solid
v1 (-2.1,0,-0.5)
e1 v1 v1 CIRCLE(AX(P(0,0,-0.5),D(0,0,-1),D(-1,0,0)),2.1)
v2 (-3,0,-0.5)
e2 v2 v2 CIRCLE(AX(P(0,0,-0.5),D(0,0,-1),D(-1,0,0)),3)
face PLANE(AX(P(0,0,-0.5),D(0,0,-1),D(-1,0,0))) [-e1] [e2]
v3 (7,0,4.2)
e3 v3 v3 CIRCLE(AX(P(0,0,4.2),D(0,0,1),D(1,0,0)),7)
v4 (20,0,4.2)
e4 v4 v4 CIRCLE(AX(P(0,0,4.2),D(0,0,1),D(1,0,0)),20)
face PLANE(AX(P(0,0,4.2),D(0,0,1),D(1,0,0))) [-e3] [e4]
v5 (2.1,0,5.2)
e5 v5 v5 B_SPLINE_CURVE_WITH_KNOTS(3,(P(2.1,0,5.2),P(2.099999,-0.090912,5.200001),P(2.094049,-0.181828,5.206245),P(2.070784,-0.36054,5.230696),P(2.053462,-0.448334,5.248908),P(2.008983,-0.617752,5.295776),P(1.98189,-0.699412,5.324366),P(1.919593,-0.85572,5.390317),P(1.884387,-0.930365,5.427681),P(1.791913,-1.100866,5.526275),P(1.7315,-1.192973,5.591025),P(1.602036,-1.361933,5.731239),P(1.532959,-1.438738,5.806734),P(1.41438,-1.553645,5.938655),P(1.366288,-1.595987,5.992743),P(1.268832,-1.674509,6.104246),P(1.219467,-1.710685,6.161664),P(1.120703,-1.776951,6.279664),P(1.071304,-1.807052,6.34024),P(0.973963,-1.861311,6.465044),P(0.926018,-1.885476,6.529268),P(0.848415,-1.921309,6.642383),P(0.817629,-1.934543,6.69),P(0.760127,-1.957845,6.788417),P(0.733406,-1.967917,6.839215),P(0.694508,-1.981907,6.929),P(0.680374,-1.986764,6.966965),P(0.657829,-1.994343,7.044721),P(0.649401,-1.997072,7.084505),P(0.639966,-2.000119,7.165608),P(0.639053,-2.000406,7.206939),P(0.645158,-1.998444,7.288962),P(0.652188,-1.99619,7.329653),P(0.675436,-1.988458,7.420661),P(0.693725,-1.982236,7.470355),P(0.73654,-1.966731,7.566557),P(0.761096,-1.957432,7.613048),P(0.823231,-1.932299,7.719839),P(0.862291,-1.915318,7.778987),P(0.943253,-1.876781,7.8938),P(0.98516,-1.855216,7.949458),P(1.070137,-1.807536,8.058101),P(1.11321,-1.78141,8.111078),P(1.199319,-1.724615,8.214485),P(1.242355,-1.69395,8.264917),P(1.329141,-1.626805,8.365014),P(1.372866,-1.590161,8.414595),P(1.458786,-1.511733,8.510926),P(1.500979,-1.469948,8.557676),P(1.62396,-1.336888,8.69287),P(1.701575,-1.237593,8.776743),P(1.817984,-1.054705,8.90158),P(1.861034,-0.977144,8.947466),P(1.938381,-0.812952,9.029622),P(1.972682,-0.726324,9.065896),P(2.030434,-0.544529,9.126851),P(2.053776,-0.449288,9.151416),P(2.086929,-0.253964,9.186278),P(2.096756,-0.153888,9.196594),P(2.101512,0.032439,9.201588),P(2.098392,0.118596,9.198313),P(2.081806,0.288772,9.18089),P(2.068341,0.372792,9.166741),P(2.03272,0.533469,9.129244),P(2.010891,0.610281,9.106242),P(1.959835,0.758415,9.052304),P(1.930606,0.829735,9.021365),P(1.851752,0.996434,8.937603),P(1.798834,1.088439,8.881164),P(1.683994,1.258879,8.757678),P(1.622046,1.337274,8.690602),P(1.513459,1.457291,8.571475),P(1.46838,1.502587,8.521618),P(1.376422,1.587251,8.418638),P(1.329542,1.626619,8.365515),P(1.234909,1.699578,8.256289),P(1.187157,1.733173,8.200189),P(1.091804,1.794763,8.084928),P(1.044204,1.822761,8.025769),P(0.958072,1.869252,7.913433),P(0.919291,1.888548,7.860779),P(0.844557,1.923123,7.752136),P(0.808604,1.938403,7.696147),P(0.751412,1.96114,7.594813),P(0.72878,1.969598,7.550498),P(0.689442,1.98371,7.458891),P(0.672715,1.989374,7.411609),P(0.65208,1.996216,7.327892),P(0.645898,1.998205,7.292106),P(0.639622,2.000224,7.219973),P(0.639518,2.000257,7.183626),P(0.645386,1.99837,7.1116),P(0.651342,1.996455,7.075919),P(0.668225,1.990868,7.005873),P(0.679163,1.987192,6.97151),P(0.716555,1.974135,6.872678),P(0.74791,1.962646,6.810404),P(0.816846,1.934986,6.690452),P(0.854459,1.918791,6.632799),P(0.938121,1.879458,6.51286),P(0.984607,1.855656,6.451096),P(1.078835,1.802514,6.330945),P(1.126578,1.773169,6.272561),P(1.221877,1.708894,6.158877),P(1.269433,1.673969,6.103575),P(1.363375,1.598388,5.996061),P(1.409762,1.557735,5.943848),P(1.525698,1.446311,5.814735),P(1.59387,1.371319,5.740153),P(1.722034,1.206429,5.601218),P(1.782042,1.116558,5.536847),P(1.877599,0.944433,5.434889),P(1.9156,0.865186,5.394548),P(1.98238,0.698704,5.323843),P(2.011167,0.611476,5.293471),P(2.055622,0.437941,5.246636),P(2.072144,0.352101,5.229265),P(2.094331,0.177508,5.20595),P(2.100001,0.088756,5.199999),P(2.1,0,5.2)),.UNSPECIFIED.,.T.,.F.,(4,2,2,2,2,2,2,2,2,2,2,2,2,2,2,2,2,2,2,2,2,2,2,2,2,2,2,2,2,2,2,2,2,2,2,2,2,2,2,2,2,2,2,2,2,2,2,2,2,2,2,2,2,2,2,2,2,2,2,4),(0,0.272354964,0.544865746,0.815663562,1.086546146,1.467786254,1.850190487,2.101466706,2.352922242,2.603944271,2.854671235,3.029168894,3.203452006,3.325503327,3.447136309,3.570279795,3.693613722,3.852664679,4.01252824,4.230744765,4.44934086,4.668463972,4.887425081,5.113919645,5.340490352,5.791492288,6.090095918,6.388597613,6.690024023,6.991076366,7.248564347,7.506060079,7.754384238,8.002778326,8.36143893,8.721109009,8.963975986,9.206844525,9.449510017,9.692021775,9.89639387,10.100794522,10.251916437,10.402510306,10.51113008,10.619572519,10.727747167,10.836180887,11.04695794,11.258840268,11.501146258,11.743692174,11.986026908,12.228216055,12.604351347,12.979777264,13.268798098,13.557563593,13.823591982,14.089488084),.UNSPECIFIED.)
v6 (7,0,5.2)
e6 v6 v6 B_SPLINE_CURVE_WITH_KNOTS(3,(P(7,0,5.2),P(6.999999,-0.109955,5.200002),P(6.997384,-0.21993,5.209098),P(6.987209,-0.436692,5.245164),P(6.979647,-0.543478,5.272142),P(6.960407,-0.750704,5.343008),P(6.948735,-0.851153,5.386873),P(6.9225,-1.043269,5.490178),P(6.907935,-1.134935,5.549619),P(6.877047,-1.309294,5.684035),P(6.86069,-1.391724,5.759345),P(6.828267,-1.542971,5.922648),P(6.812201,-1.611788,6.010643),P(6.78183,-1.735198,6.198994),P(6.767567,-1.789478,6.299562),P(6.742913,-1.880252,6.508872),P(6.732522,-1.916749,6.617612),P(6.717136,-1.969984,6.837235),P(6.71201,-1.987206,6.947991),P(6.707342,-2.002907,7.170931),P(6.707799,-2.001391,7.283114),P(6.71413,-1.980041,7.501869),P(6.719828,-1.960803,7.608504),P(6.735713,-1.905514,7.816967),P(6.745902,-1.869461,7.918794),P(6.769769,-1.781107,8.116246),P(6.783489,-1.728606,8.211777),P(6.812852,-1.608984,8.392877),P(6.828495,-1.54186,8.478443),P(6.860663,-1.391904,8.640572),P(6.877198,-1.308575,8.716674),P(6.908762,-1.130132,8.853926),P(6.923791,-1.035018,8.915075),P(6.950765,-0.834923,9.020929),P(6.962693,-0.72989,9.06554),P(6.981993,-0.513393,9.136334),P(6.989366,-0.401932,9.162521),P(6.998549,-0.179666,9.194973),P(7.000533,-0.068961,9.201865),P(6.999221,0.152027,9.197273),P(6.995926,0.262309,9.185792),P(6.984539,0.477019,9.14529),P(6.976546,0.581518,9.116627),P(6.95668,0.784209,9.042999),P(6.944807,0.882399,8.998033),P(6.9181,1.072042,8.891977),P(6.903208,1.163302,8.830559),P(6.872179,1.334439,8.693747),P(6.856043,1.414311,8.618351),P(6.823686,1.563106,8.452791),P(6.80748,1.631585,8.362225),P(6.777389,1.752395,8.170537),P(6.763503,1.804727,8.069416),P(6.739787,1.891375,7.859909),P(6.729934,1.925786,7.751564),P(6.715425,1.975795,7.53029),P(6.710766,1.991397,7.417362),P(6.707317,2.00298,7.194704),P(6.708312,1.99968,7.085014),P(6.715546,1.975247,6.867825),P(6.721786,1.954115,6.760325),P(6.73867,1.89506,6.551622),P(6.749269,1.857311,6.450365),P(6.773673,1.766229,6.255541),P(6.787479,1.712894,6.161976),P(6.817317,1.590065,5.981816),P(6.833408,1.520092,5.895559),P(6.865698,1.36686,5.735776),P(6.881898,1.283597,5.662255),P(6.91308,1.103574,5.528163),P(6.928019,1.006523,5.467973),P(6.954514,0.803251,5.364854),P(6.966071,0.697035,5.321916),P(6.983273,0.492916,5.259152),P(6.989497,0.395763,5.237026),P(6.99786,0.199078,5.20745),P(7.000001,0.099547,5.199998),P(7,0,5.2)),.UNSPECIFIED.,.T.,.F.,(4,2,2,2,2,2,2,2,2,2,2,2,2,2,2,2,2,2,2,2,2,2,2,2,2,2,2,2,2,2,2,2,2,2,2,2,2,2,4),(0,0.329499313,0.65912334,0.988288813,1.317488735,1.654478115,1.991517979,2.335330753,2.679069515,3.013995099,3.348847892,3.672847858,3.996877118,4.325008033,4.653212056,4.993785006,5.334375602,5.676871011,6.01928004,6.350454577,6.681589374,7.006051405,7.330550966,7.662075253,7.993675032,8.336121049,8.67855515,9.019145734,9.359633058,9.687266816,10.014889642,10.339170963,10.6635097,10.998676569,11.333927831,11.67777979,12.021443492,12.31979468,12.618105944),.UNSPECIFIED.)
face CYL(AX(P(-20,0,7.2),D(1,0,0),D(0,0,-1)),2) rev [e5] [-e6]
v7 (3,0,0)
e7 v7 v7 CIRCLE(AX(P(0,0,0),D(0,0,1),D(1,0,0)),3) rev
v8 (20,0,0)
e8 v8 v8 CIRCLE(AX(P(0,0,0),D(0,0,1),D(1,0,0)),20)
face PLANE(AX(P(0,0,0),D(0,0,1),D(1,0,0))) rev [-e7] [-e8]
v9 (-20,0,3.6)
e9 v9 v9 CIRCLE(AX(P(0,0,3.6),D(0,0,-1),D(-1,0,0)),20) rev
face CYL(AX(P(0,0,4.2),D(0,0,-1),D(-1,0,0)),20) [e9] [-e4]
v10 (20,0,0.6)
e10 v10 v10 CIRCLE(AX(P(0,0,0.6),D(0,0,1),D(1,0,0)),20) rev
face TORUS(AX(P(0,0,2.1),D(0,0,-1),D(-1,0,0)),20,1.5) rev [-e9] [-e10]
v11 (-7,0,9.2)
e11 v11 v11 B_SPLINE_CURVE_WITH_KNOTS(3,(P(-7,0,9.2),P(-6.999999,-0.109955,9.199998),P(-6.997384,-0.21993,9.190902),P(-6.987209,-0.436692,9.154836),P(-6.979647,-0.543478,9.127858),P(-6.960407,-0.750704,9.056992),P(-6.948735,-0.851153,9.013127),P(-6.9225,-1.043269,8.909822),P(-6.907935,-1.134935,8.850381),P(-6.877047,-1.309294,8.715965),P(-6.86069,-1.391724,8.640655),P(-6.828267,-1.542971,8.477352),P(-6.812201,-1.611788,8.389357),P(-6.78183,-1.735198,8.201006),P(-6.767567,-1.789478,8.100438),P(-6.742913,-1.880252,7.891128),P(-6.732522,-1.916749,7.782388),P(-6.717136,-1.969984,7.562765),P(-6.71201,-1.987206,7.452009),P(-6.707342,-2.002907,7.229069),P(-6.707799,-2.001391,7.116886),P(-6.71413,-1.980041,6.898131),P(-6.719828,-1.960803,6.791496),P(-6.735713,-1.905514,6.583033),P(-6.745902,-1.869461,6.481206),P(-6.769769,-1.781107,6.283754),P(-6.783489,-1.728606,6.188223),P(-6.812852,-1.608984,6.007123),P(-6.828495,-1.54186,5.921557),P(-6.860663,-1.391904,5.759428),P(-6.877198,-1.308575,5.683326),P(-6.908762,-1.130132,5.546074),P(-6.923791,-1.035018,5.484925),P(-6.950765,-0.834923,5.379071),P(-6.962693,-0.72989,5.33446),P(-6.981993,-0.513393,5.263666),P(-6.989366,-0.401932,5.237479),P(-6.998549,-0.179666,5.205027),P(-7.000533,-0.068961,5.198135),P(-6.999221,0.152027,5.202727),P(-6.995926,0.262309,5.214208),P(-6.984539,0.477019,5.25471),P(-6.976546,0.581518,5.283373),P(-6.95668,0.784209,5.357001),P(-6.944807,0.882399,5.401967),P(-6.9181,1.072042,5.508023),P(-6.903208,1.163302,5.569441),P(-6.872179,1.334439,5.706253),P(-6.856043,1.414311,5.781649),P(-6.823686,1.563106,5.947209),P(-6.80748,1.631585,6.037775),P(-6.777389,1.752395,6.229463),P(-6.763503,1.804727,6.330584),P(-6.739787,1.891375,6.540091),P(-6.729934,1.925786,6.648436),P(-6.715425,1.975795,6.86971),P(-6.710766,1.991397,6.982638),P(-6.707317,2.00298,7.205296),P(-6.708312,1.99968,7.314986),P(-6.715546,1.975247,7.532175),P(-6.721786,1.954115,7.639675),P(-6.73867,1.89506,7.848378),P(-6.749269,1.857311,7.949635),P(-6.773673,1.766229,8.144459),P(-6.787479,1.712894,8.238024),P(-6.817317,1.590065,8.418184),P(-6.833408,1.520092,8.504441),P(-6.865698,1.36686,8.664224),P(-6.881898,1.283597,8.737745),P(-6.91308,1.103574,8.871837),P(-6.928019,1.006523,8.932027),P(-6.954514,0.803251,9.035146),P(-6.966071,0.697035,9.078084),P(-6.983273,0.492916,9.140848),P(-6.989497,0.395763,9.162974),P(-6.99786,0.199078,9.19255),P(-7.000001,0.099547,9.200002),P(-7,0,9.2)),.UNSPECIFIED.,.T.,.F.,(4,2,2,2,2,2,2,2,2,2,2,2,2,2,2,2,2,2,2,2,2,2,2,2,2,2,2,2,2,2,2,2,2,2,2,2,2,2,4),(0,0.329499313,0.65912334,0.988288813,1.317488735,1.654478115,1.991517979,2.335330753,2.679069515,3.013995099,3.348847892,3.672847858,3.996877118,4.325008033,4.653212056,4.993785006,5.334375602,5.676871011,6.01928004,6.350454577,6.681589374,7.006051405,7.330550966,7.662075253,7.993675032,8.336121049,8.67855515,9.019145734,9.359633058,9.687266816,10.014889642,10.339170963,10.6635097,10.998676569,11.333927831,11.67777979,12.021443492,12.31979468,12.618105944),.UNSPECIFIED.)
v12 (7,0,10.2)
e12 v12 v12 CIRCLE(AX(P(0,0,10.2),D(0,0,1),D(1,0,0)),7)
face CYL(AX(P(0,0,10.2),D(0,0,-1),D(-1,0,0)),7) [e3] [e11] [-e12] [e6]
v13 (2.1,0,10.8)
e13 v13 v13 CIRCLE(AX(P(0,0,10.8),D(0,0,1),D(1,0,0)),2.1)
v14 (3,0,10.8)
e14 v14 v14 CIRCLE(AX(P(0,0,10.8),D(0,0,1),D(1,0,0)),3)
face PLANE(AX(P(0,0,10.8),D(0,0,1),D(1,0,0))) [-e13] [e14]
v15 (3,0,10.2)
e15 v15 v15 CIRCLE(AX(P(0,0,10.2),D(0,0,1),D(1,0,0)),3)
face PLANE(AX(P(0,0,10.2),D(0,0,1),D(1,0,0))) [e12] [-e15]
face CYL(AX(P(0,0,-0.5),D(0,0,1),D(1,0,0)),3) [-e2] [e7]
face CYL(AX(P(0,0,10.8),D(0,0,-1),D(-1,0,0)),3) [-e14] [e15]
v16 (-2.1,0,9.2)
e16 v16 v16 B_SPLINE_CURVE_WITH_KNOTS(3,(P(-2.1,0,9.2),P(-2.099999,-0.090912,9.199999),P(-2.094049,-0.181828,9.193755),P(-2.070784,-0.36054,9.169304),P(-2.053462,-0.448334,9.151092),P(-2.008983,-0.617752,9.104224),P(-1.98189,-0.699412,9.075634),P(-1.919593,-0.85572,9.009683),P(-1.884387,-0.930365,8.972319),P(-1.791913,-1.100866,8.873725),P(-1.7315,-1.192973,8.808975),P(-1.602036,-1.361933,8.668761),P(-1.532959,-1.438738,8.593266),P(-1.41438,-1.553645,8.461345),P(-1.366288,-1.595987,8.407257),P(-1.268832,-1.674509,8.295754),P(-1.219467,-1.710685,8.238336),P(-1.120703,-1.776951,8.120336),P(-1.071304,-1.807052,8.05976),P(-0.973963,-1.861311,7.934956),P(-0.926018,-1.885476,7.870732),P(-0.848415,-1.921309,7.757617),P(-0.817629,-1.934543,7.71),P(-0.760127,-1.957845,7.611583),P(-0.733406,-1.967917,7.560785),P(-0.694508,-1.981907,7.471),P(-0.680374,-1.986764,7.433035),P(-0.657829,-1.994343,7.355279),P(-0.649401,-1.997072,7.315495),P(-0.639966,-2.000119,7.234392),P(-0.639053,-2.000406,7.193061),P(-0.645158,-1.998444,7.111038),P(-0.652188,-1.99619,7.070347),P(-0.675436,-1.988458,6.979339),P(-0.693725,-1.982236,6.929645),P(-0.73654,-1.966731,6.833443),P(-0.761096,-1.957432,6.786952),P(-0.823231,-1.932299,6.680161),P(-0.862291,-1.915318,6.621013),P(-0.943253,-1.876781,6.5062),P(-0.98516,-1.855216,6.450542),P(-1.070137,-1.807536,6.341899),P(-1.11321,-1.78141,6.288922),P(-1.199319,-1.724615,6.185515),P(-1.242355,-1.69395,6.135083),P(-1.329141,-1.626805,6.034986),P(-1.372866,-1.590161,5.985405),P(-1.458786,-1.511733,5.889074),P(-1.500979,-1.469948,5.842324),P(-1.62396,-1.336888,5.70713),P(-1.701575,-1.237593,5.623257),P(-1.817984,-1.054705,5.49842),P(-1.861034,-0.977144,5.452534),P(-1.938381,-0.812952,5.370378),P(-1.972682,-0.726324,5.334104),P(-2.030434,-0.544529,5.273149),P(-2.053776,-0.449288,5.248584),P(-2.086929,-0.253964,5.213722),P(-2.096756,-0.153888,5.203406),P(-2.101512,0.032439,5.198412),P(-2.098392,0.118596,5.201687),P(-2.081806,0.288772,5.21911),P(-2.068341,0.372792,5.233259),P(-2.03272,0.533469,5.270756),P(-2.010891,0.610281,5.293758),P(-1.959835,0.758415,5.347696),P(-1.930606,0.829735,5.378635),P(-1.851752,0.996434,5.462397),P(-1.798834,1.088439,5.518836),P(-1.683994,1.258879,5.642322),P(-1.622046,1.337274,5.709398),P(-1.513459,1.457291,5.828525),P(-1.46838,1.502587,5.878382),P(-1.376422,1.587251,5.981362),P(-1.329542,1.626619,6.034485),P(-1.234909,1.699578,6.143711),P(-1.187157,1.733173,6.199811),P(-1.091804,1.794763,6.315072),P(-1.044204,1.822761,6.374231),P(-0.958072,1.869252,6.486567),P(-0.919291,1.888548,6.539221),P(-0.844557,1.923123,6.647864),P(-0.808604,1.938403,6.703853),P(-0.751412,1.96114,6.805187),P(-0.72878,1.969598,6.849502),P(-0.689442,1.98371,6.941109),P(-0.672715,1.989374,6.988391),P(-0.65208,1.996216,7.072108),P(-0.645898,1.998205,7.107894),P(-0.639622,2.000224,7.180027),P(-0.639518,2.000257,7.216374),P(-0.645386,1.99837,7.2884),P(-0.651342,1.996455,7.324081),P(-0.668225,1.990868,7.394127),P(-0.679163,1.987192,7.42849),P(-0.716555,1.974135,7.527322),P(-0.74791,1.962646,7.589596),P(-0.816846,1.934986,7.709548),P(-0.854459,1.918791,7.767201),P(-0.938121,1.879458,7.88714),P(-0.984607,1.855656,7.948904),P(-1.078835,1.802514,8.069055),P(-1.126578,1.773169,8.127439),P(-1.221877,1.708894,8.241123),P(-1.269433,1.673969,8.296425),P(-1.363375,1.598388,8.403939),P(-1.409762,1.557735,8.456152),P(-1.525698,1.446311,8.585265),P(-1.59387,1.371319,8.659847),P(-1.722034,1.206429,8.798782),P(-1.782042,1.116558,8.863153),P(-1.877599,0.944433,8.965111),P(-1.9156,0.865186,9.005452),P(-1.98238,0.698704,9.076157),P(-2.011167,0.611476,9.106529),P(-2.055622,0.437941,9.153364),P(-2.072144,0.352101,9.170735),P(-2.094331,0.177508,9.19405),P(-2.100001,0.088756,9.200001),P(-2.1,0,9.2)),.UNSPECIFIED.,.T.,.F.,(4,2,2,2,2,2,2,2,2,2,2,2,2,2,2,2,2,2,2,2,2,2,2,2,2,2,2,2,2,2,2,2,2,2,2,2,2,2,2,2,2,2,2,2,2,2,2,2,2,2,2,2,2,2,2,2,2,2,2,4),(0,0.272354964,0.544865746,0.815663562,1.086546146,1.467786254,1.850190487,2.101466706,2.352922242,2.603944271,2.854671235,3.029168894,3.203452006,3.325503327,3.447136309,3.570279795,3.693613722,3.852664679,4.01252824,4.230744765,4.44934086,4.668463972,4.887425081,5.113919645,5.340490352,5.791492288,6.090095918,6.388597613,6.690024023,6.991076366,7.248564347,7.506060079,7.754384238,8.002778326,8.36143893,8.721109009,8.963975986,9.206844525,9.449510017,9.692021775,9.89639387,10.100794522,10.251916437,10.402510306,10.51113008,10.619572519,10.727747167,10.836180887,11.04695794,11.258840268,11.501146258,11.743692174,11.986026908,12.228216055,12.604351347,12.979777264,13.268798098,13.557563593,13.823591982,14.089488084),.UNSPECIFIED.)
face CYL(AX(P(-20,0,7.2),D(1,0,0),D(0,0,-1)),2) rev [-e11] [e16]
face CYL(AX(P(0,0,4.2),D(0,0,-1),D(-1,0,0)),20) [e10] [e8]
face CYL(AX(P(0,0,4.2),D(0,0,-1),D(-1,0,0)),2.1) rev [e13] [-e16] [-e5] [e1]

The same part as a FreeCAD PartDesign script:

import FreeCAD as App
import Part
import Sketcher

V = App.Vector

doc = App.newDocument("Part")
body = doc.addObject("PartDesign::Body", "Body")

# Sketch on XY plane
sketch1 = doc.addObject("Sketcher::SketchObject", "Sketch")
body.addObject(sketch1)
sketch1.AttachmentSupport = (doc.XY_Plane, [""])
sketch1.MapMode = "FlatFace"
sketch1.addGeometry([
    Part.Circle(V(0, 0, 0), V(0, 0, 1), 20),
    Part.Circle(V(0, 0, 0), V(0, 0, 1), 2.1),
], False)
sketch1.addConstraint([
    Sketcher.Constraint("Coincident", 0, 3, -1, 1),
    Sketcher.Constraint("Coincident", 1, 3, -1, 1),
    Sketcher.Constraint("Diameter", 0, 40.0),
    Sketcher.Constraint("Diameter", 1, 4.2),
])
pad1 = doc.addObject("PartDesign::Pad", "Pad")
body.addObject(pad1)
pad1.Profile = sketch1
pad1.Length = 4.2

# Sketch on XY plane
sketch2 = doc.addObject("Sketcher::SketchObject", "Sketch001")
body.addObject(sketch2)
sketch2.AttachmentSupport = (doc.XY_Plane, [""])
sketch2.MapMode = "FlatFace"
sketch2.AttachmentOffset = App.Placement(V(0, 0, 4.2), App.Rotation())
sketch2.addGeometry([
    Part.Circle(V(0, 0, 0), V(0, 0, 1), 7),
    Part.Circle(V(0, 0, 0), V(0, 0, 1), 2.1),
], False)
sketch2.addConstraint([
    Sketcher.Constraint("Coincident", 0, 3, -1, 1),
    Sketcher.Constraint("Coincident", 1, 3, -1, 1),
    Sketcher.Constraint("Diameter", 0, 14.0),
    Sketcher.Constraint("Diameter", 1, 4.2),
])
pad2 = doc.addObject("PartDesign::Pad", "Pad001")
body.addObject(pad2)
pad2.Profile = sketch2
pad2.Length = 6

# Sketch on YZ plane
sketch3 = doc.addObject("Sketcher::SketchObject", "Sketch002")
body.addObject(sketch3)
sketch3.AttachmentSupport = (doc.YZ_Plane, [""])
sketch3.MapMode = "FlatFace"
sketch3.addGeometry(Part.Circle(V(20, 2.1, 0), V(0, 0, 1), 1.5), False)
sketch3.addConstraint([
    Sketcher.Constraint("Diameter", 0, 3.0),
    Sketcher.Constraint("DistanceX", -1, 1, 0, 3, 20.0),
    Sketcher.Constraint("DistanceY", -1, 1, 0, 3, 2.1),
])
groove = doc.addObject("PartDesign::Groove", "Groove")
body.addObject(groove)
groove.Profile = sketch3
groove.ReferenceAxis = (sketch3, ["V_Axis"])
groove.Angle = 360

# Sketch on YZ plane
sketch4 = doc.addObject("Sketcher::SketchObject", "Sketch003")
body.addObject(sketch4)
sketch4.AttachmentSupport = (doc.YZ_Plane, [""])
sketch4.MapMode = "FlatFace"
sketch4.addGeometry(Part.Circle(V(0, 7.2, 0), V(0, 0, 1), 2), False)
sketch4.addConstraint([
    Sketcher.Constraint("PointOnObject", 0, 3, -2),
    Sketcher.Constraint("Diameter", 0, 4.0),
    Sketcher.Constraint("DistanceY", -1, 1, 0, 3, 7.2),
])
pocket1 = doc.addObject("PartDesign::Pocket", "Pocket")
body.addObject(pocket1)
pocket1.Profile = sketch4
pocket1.Type = "ThroughAll"
pocket1.Midplane = True

# Sketch on XY plane
sketch5 = doc.addObject("Sketcher::SketchObject", "Sketch004")
body.addObject(sketch5)
sketch5.AttachmentSupport = (doc.XY_Plane, [""])
sketch5.MapMode = "FlatFace"
sketch5.AttachmentOffset = App.Placement(V(0, 0, 10.2), App.Rotation())
sketch5.addGeometry([
    Part.Circle(V(0, 0, 0), V(0, 0, 1), 3),
    Part.Circle(V(0, 0, 0), V(0, 0, 1), 2.1),
], False)
sketch5.addConstraint([
    Sketcher.Constraint("Coincident", 0, 3, -1, 1),
    Sketcher.Constraint("Coincident", 1, 3, -1, 1),
    Sketcher.Constraint("Diameter", 0, 6.0),
    Sketcher.Constraint("Diameter", 1, 4.2),
])
pad3 = doc.addObject("PartDesign::Pad", "Pad002")
body.addObject(pad3)
pad3.Profile = sketch5
pad3.Length = 0.6

# Sketch on XY plane
sketch6 = doc.addObject("Sketcher::SketchObject", "Sketch005")
body.addObject(sketch6)
sketch6.AttachmentSupport = (doc.XY_Plane, [""])
sketch6.MapMode = "FlatFace"
sketch6.AttachmentOffset = App.Placement(V(0, 0, -0.5), App.Rotation())
sketch6.addGeometry([
    Part.Circle(V(0, 0, 0), V(0, 0, 1), 3),
    Part.Circle(V(0, 0, 0), V(0, 0, 1), 2.1),
], False)
sketch6.addConstraint([
    Sketcher.Constraint("Coincident", 0, 3, -1, 1),
    Sketcher.Constraint("Coincident", 1, 3, -1, 1),
    Sketcher.Constraint("Diameter", 0, 6.0),
    Sketcher.Constraint("Diameter", 1, 4.2),
])
pad4 = doc.addObject("PartDesign::Pad", "Pad003")
body.addObject(pad4)
pad4.Profile = sketch6
pad4.Length = 0.5

doc.recompute()
